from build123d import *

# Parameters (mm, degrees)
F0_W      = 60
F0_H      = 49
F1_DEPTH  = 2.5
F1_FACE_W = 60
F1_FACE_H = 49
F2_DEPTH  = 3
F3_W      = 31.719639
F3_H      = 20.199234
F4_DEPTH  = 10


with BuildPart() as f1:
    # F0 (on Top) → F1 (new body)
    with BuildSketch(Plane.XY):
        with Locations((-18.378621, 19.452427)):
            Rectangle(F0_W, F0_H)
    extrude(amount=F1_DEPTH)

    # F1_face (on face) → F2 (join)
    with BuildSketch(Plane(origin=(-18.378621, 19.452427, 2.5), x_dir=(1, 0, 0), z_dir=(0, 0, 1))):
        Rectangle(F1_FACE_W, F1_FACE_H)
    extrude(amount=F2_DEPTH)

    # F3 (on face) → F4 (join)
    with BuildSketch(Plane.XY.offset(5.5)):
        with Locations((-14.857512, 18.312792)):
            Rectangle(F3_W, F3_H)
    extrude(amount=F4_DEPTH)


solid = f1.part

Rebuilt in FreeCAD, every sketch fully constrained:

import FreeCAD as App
import Part
import Sketcher
from FreeCAD import Vector


def add_polygon(sketch, points):
    """Adds a closed chain of lines whose ends are joined by coincident constraints."""
    first, n = sketch.GeometryCount, len(points)
    for a, b in zip(points, points[1:] + points[:1]):
        sketch.addGeometry(Part.LineSegment(App.Vector(*a, 0), App.Vector(*b, 0)), False)
    for i in range(n):
        sketch.addConstraint(Sketcher.Constraint("Coincident", first + i, 2, first + (i + 1) % n, 1))

doc = App.newDocument("Part")
params = doc.addObject("Spreadsheet::Sheet", "Params")
for row, (alias, value) in enumerate([
    ("sketch1_width", "60 mm"),
    ("sketch1_height", "49 mm"),
    ("pad1_length", "2.5 mm"),
    ("sketch2_width", "60 mm"),
    ("sketch2_height", "49 mm"),
    ("pad2_length", "3 mm"),
    ("pad3_length", "10 mm"),
], start=1):
    params.set(f"A{row}", alias)
    params.set(f"B{row}", "=" + value)
    params.setAlias(f"B{row}", alias)

body = doc.addObject("PartDesign::Body", "Body")

sketch1 = body.newObject("Sketcher::SketchObject", "Sketch")
sketch1.AttachmentSupport = (doc.getObject("XY_Plane"), [""])
sketch1.MapMode = "FlatFace"
add_polygon(sketch1, [(-48, 44), (-48, -5), (12, -5), (12, 44)])
sketch1.addConstraint([
    Sketcher.Constraint("Vertical", 0),
    Sketcher.Constraint("Horizontal", 1),
    Sketcher.Constraint("Vertical", 2),
    Sketcher.Constraint("Horizontal", 3),
    Sketcher.Constraint("DistanceX", 1, 1, 1, 2, 60.0),
    Sketcher.Constraint("DistanceY", 0, 2, 0, 1, 49.0),
    Sketcher.Constraint("DistanceX", 0, 2, -1, 1, 48.378621),
    Sketcher.Constraint("DistanceY", 0, 2, -1, 1, 5.047573),
])
sketch1.setExpression("Constraints[8]", "Params.sketch1_width")
sketch1.setExpression("Constraints[9]", "Params.sketch1_height")
pad1 = body.newObject("PartDesign::Pad", "Pad")
pad1.Profile = sketch1
pad1.setExpression("Length", "Params.pad1_length")

sketch2 = body.newObject("Sketcher::SketchObject", "Sketch001")
sketch2.AttachmentSupport = (doc.getObject("XY_Plane"), [""])
sketch2.MapMode = "FlatFace"
sketch2.AttachmentOffset = App.Placement(Vector(0, 0, 2.5), App.Rotation())
add_polygon(sketch2, [(-48, 44), (-48, -5), (12, -5), (12, 44)])
sketch2.addConstraint([
    Sketcher.Constraint("Vertical", 0),
    Sketcher.Constraint("Horizontal", 1),
    Sketcher.Constraint("Vertical", 2),
    Sketcher.Constraint("Horizontal", 3),
    Sketcher.Constraint("DistanceX", 1, 1, 1, 2, 60.0),
    Sketcher.Constraint("DistanceY", 0, 2, 0, 1, 49.0),
    Sketcher.Constraint("DistanceX", 0, 2, -1, 1, 48.378621),
    Sketcher.Constraint("DistanceY", 0, 2, -1, 1, 5.047573),
])
sketch2.setExpression("Constraints[8]", "Params.sketch2_width")
sketch2.setExpression("Constraints[9]", "Params.sketch2_height")
pad2 = body.newObject("PartDesign::Pad", "Pad001")
pad2.Profile = sketch2
pad2.setExpression("Length", "Params.pad2_length")

sketch3 = body.newObject("Sketcher::SketchObject", "Sketch002")
sketch3.AttachmentSupport = (doc.getObject("XY_Plane"), [""])
sketch3.MapMode = "FlatFace"
sketch3.AttachmentOffset = App.Placement(Vector(0, 0, 5.5), App.Rotation())
add_polygon(sketch3, [(-31, 28), (-31, 8), (1, 8), (1, 28)])
sketch3.addConstraint([
    Sketcher.Constraint("Vertical", 0),
    Sketcher.Constraint("Horizontal", 1),
    Sketcher.Constraint("Vertical", 2),
    Sketcher.Constraint("Horizontal", 3),
    Sketcher.Constraint("DistanceX", 1, 1, 1, 2, 31.719639),
    Sketcher.Constraint("DistanceY", 0, 2, 0, 1, 20.199234),
    Sketcher.Constraint("DistanceX", 0, 2, -1, 1, 30.717332),
    Sketcher.Constraint("DistanceY", -1, 1, 2, 2, 28.412409),
])
pad3 = body.newObject("PartDesign::Pad", "Pad002")
pad3.Profile = sketch3
pad3.setExpression("Length", "Params.pad3_length")

doc.recompute()
